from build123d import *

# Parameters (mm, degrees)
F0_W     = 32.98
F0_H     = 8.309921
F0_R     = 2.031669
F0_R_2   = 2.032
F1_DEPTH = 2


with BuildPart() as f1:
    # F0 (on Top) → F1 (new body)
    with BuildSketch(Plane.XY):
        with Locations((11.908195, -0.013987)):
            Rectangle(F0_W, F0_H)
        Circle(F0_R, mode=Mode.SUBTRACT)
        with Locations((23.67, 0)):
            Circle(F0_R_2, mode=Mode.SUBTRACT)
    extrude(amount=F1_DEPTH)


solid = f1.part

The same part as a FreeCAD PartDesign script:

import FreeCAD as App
import Part
import Sketcher
Q = App.Units.Quantity

doc = App.newDocument("Part")
body = doc.addObject("PartDesign::Body", "Body")

sketch1 = body.newObject("Sketcher::SketchObject", "Sketch")
sketch1.AttachmentSupport = (doc.getObject("XY_Plane"), [""])
sketch1.MapMode = "FlatFace"
sketch1.addGeometry(Part.LineSegment(App.Vector(-4.6, 4.1, 0), App.Vector(-4.6, -4.2, 0)), False)
sketch1.addGeometry(Part.LineSegment(App.Vector(-4.6, -4.2, 0), App.Vector(28.4, -4.2, 0)), False)
sketch1.addGeometry(Part.LineSegment(App.Vector(28.4, -4.2, 0), App.Vector(28.4, 4.1, 0)), False)
sketch1.addGeometry(Part.LineSegment(App.Vector(28.4, 4.1, 0), App.Vector(-4.6, 4.1, 0)), False)
sketch1.addGeometry(Part.Circle(App.Vector(0, 0, 0), App.Vector(0, 0, 1), 2), False)
sketch1.addGeometry(Part.Circle(App.Vector(23.7, 0, 0), App.Vector(0, 0, 1), 2), False)
sketch1.addConstraint(Sketcher.Constraint("Coincident", 0, 2, 1, 1))
sketch1.addConstraint(Sketcher.Constraint("Coincident", 1, 2, 2, 1))
sketch1.addConstraint(Sketcher.Constraint("Coincident", 2, 2, 3, 1))
sketch1.addConstraint(Sketcher.Constraint("Coincident", 3, 2, 0, 1))
sketch1.addConstraint(Sketcher.Constraint("Vertical", 0))
sketch1.addConstraint(Sketcher.Constraint("Horizontal", 1))
sketch1.addConstraint(Sketcher.Constraint("Vertical", 2))
sketch1.addConstraint(Sketcher.Constraint("Horizontal", 3))
sketch1.addConstraint(Sketcher.Constraint("Coincident", 4, 3, -1, 1))
sketch1.addConstraint(Sketcher.Constraint("PointOnObject", 5, 3, -1))
sketch1.addConstraint(Sketcher.Constraint("Diameter", 5, Q("4.064 mm")))
sketch1.addConstraint(Sketcher.Constraint("DistanceX", 1, 1, 1, 2, Q("32.98 mm")))
sketch1.addConstraint(Sketcher.Constraint("DistanceX", -1, 1, 5, 3, Q("23.67 mm")))
sketch1.addConstraint(Sketcher.Constraint("Diameter", 4, Q("4.063338 mm")))
sketch1.addConstraint(Sketcher.Constraint("DistanceY", 0, 2, 0, 1, Q("8.309921 mm")))
sketch1.addConstraint(Sketcher.Constraint("DistanceX", 0, 2, -1, 1, Q("4.581805 mm")))
sketch1.addConstraint(Sketcher.Constraint("DistanceY", 0, 2, -1, 1, Q("4.168947 mm")))
pad1 = body.newObject("PartDesign::Pad", "Pad")
pad1.Profile = sketch1
pad1.Length = 2

doc.recompute()
